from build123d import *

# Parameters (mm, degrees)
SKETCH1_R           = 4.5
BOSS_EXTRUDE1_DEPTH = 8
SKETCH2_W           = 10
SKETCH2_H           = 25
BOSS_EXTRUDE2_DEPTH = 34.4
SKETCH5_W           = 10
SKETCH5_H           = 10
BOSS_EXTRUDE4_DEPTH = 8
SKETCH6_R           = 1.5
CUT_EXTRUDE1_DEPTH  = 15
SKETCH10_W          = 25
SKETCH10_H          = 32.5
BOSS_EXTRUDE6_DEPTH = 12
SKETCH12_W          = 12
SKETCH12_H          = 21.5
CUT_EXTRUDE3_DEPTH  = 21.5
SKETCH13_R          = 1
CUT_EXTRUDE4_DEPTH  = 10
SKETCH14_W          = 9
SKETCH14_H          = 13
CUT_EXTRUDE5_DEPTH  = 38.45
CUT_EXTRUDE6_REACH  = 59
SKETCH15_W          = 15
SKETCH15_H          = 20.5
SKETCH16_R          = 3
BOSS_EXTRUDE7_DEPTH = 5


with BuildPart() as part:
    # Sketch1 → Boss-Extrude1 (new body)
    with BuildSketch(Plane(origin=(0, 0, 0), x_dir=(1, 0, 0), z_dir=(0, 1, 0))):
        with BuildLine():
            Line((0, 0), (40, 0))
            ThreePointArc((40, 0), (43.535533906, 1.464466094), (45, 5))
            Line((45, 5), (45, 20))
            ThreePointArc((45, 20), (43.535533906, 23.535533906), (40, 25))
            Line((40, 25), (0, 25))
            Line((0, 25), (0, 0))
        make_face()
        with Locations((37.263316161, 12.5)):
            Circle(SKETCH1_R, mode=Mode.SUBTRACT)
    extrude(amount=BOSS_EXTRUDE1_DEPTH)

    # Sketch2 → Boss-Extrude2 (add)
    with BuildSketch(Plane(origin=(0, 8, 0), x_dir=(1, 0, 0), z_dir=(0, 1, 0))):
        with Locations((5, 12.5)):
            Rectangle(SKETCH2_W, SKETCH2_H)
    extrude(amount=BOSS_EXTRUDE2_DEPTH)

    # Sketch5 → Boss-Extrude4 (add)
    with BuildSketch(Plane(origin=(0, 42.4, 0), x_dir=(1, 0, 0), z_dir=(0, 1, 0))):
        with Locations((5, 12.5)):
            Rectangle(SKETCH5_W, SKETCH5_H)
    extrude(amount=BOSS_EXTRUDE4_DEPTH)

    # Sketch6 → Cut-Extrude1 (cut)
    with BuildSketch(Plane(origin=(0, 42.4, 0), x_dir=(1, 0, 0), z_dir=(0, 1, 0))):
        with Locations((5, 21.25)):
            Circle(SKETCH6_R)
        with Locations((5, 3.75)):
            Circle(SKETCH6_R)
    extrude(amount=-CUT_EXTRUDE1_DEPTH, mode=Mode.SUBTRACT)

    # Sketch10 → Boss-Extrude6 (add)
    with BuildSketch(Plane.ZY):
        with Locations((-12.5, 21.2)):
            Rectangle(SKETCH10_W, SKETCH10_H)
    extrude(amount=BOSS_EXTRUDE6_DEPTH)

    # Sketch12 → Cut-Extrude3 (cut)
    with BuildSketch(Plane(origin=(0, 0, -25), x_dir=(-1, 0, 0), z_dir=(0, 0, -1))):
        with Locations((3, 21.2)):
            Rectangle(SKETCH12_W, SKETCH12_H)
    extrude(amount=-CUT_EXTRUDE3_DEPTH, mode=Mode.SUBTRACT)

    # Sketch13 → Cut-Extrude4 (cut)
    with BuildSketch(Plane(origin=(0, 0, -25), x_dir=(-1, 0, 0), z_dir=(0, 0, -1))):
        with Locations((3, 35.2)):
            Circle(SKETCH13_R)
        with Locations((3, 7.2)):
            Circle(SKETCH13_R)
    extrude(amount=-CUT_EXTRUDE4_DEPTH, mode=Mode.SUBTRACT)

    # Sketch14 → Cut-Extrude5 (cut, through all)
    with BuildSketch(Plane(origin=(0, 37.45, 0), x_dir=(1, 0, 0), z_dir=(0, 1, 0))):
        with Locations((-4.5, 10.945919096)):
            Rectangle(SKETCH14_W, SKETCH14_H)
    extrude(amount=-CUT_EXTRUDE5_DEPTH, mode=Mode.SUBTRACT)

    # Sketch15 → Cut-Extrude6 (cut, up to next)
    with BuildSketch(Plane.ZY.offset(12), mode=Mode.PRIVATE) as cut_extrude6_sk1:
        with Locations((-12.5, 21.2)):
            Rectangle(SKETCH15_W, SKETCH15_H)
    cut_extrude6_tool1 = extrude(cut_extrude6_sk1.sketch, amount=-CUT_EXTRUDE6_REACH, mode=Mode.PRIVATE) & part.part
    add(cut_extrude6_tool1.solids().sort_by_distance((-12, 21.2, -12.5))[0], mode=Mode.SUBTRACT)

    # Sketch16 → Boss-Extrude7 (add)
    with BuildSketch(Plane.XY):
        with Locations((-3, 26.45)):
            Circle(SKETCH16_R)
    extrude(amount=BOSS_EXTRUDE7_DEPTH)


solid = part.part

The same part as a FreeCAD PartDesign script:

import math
import FreeCAD as App
import Part
import Sketcher

V = App.Vector
Q = App.Units.Quantity


def add_polygon(sketch, points):
    """Adds a closed chain of lines whose ends are joined by coincident constraints."""
    first, n = sketch.GeometryCount, len(points)
    for a, b in zip(points, points[1:] + points[:1]):
        sketch.addGeometry(Part.LineSegment(App.Vector(*a, 0), App.Vector(*b, 0)), False)
    for i in range(n):
        sketch.addConstraint(Sketcher.Constraint("Coincident", first + i, 2, first + (i + 1) % n, 1))

doc = App.newDocument("Part")
params = doc.addObject("Spreadsheet::Sheet", "Params")
for row, (alias, value) in enumerate([
    ("sketch1_diameter", "9 mm"),
    ("sketch1_radius", "5 mm"),
    ("sketch1_width", "40 mm"),
    ("sketch1_height", "15 mm"),
    ("pad1_length", "8 mm"),
    ("sketch2_width", "10 mm"),
    ("sketch2_height", "25 mm"),
    ("pad2_length", "34.4 mm"),
    ("sketch3_width", "10 mm"),
    ("pad3_length", "8 mm"),
    ("sketch4_diameter", "3 mm"),
    ("pocket1_length", "15 mm"),
    ("sketch5_height", "25 mm"),
    ("sketch5_width", "32.5 mm"),
    ("pad4_length", "12 mm"),
    ("sketch6_width", "12 mm"),
    ("sketch6_height", "21.5 mm"),
    ("pocket2_length", "21.5 mm"),
    ("sketch7_diameter", "2 mm"),
    ("pocket3_length", "10 mm"),
    ("sketch8_width", "9 mm"),
    ("sketch8_height", "13 mm"),
    ("sketch9_height", "15 mm"),
    ("sketch9_width", "20.5 mm"),
    ("sketch10_diameter", "6 mm"),
    ("pad5_length", "5 mm"),
], start=1):
    params.set(f"A{row}", alias)
    params.set(f"B{row}", "=" + value)
    params.setAlias(f"B{row}", alias)

body = doc.addObject("PartDesign::Body", "Body")

# Sketch on XZ plane
sketch1 = body.newObject("Sketcher::SketchObject", "Sketch")
sketch1.AttachmentSupport = (doc.getObject("XZ_Plane"), [""])
sketch1.MapMode = "FlatFace"
sketch1.addGeometry([
    Part.LineSegment(V(0, 0, 0), V(40, 0, 0)),  # 0
    Part.ArcOfCircle(Part.Circle(V(40, -5, 0), V(0, 0, 1), 5), math.radians(0), math.radians(90)),  # 1
    Part.LineSegment(V(45, -5, 0), V(45, -20, 0)),  # 2
    Part.ArcOfCircle(Part.Circle(V(40, -20, 0), V(0, 0, 1), 5), math.radians(-90), math.radians(0)),  # 3
    Part.LineSegment(V(40, -25, 0), V(0, -25, 0)),  # 4
    Part.LineSegment(V(0, -25, 0), V(0, 0, 0)),  # 5
    Part.Circle(V(37.3, -12.5, 0), V(0, 0, 1), 4.5),  # 6
], False)
sketch1.addConstraint([
    Sketcher.Constraint("Tangent", 0, 2, 1, 2),
    Sketcher.Constraint("Tangent", 1, 1, 2, 1),
    Sketcher.Constraint("Tangent", 2, 2, 3, 2),
    Sketcher.Constraint("Tangent", 3, 1, 4, 1),
    Sketcher.Constraint("Coincident", 4, 2, 5, 1),
    Sketcher.Constraint("Coincident", 5, 2, 0, 1),
    Sketcher.Constraint("Horizontal", 0),
    Sketcher.Constraint("Vertical", 2),
    Sketcher.Constraint("Horizontal", 4),
    Sketcher.Constraint("Vertical", 5),
    Sketcher.Constraint("Coincident", 5, 2, -1, 1),
    Sketcher.Constraint("Equal", 1, 3),
    Sketcher.Constraint("Diameter", 6, Q("9 mm")),
    Sketcher.Constraint("Radius", 1, Q("5 mm")),
    Sketcher.Constraint("DistanceX", 0, 1, 0, 2, Q("40 mm")),
    Sketcher.Constraint("DistanceY", 2, 2, 2, 1, Q("15 mm")),
    Sketcher.Constraint("DistanceY", 6, 3, -1, 1, Q("12.5 mm")),
    Sketcher.Constraint("DistanceX", -1, 1, 6, 3, Q("37.263316 mm")),
])
sketch1.setExpression("Constraints[12]", "Params.sketch1_diameter")
sketch1.setExpression("Constraints[13]", "Params.sketch1_radius")
sketch1.setExpression("Constraints[14]", "Params.sketch1_width")
sketch1.setExpression("Constraints[15]", "Params.sketch1_height")
pad1 = body.newObject("PartDesign::Pad", "Pad")
pad1.Profile = sketch1
pad1.setExpression("Length", "Params.pad1_length")
pad1.Reversed = True

# Sketch on XZ plane
sketch2 = body.newObject("Sketcher::SketchObject", "Sketch001")
sketch2.AttachmentSupport = (doc.getObject("XZ_Plane"), [""])
sketch2.MapMode = "FlatFace"
sketch2.AttachmentOffset = App.Placement(V(0, 0, -8), App.Rotation())
add_polygon(sketch2, [(0, -25), (0, 0), (10, 0), (10, -25)])  # lines 0-3
sketch2.addConstraint([
    Sketcher.Constraint("Vertical", 0),
    Sketcher.Constraint("Horizontal", 1),
    Sketcher.Constraint("Vertical", 2),
    Sketcher.Constraint("Horizontal", 3),
    Sketcher.Constraint("Coincident", 0, 2, -1, 1),
    Sketcher.Constraint("DistanceX", 1, 1, 1, 2, Q("10 mm")),
    Sketcher.Constraint("DistanceY", 0, 1, 0, 2, Q("25 mm")),
])
sketch2.setExpression("Constraints[9]", "Params.sketch2_width")
sketch2.setExpression("Constraints[10]", "Params.sketch2_height")
pad2 = body.newObject("PartDesign::Pad", "Pad001")
pad2.Profile = sketch2
pad2.setExpression("Length", "Params.pad2_length")
pad2.Reversed = True

# Sketch on XZ plane
sketch3 = body.newObject("Sketcher::SketchObject", "Sketch002")
sketch3.AttachmentSupport = (doc.getObject("XZ_Plane"), [""])
sketch3.MapMode = "FlatFace"
sketch3.AttachmentOffset = App.Placement(V(0, 0, -42.4), App.Rotation())
add_polygon(sketch3, [(0, -18), (0, -8), (10, -8), (10, -18)])  # lines 0-3
sketch3.addConstraint([
    Sketcher.Constraint("Vertical", 0),
    Sketcher.Constraint("Horizontal", 1),
    Sketcher.Constraint("Vertical", 2),
    Sketcher.Constraint("Horizontal", 3),
    Sketcher.Constraint("PointOnObject", 0, 2, -2),
    Sketcher.Constraint("Equal", 3, 0),
    Sketcher.Constraint("DistanceX", 1, 1, 1, 2, Q("10 mm")),
    Sketcher.Constraint("DistanceY", 0, 2, -1, 1, Q("7.5 mm")),
])
sketch3.setExpression("Constraints[10]", "Params.sketch3_width")
pad3 = body.newObject("PartDesign::Pad", "Pad002")
pad3.Profile = sketch3
pad3.setExpression("Length", "Params.pad3_length")
pad3.Reversed = True

# Sketch on XZ plane
sketch4 = body.newObject("Sketcher::SketchObject", "Sketch003")
sketch4.AttachmentSupport = (doc.getObject("XZ_Plane"), [""])
sketch4.MapMode = "FlatFace"
sketch4.AttachmentOffset = App.Placement(V(0, 0, -42.4), App.Rotation())
sketch4.addGeometry([
    Part.Circle(V(5, -21.2, 0), V(0, 0, 1), 1.5),
    Part.Circle(V(5, -3.8, 0), V(0, 0, 1), 1.5),
], False)
sketch4.addConstraint([
    Sketcher.Constraint("Equal", 0, 1),
    Sketcher.Constraint("Vertical", 0, 3, 1, 3),
    Sketcher.Constraint("Diameter", 0, Q("3 mm")),
    Sketcher.Constraint("DistanceX", -1, 1, 0, 3, Q("5 mm")),
    Sketcher.Constraint("DistanceY", 0, 3, 1, 3, Q("17.5 mm")),
    Sketcher.Constraint("DistanceY", 0, 3, -1, 1, Q("21.25 mm")),
])
sketch4.setExpression("Constraints[2]", "Params.sketch4_diameter")
pocket1 = body.newObject("PartDesign::Pocket", "Pocket")
pocket1.Profile = sketch4
pocket1.setExpression("Length", "Params.pocket1_length")
pocket1.Reversed = True

# Sketch on YZ plane
sketch5 = body.newObject("Sketcher::SketchObject", "Sketch004")
sketch5.AttachmentSupport = (doc.getObject("YZ_Plane"), [""])
sketch5.MapMode = "FlatFace"
add_polygon(sketch5, [(37, -25), (5, -25), (5, 0), (37, 0)])  # lines 0-3
sketch5.addConstraint([
    Sketcher.Constraint("Horizontal", 0),
    Sketcher.Constraint("Vertical", 1),
    Sketcher.Constraint("Horizontal", 2),
    Sketcher.Constraint("Vertical", 3),
    Sketcher.Constraint("PointOnObject", 1, 2, -1),
    Sketcher.Constraint("DistanceY", 1, 1, 1, 2, Q("25 mm")),
    Sketcher.Constraint("DistanceX", 0, 2, 0, 1, Q("32.5 mm")),
    Sketcher.Constraint("DistanceX", -1, 1, 0, 2, Q("4.95 mm")),
])
sketch5.setExpression("Constraints[9]", "Params.sketch5_height")
sketch5.setExpression("Constraints[10]", "Params.sketch5_width")
pad4 = body.newObject("PartDesign::Pad", "Pad003")
pad4.Profile = sketch5
pad4.setExpression("Length", "Params.pad4_length")
pad4.Reversed = True

# Sketch on XY plane
sketch6 = body.newObject("Sketcher::SketchObject", "Sketch005")
sketch6.AttachmentSupport = (doc.getObject("XY_Plane"), [""])
sketch6.MapMode = "FlatFace"
sketch6.AttachmentOffset = App.Placement(V(0, 0, -25), App.Rotation())
add_polygon(sketch6, [(3, 32), (3, 10), (-9, 10), (-9, 32)])  # lines 0-3
sketch6.addConstraint([
    Sketcher.Constraint("Vertical", 0),
    Sketcher.Constraint("Horizontal", 1),
    Sketcher.Constraint("Vertical", 2),
    Sketcher.Constraint("Horizontal", 3),
    Sketcher.Constraint("DistanceX", 1, 2, 1, 1, Q("12 mm")),
    Sketcher.Constraint("DistanceY", 0, 2, 0, 1, Q("21.5 mm")),
    Sketcher.Constraint("DistanceX", -1, 1, 0, 2, Q("3 mm")),
    Sketcher.Constraint("DistanceY", -1, 1, 0, 2, Q("10.45 mm")),
])
sketch6.setExpression("Constraints[8]", "Params.sketch6_width")
sketch6.setExpression("Constraints[9]", "Params.sketch6_height")
pocket2 = body.newObject("PartDesign::Pocket", "Pocket001")
pocket2.Profile = sketch6
pocket2.setExpression("Length", "Params.pocket2_length")
pocket2.Reversed = True

# Sketch on XY plane
sketch7 = body.newObject("Sketcher::SketchObject", "Sketch006")
sketch7.AttachmentSupport = (doc.getObject("XY_Plane"), [""])
sketch7.MapMode = "FlatFace"
sketch7.AttachmentOffset = App.Placement(V(0, 0, -25), App.Rotation())
sketch7.addGeometry([
    Part.Circle(V(-3, 35.2, 0), V(0, 0, 1), 1),
    Part.Circle(V(-3, 7.2, 0), V(0, 0, 1), 1),
], False)
sketch7.addConstraint([
    Sketcher.Constraint("Equal", 0, 1),
    Sketcher.Constraint("Vertical", 0, 3, 1, 3),
    Sketcher.Constraint("Diameter", 0, Q("2 mm")),
    Sketcher.Constraint("DistanceX", 0, 3, -1, 1, Q("3 mm")),
    Sketcher.Constraint("DistanceY", 1, 3, 0, 3, Q("28 mm")),
    Sketcher.Constraint("DistanceY", -1, 1, 0, 3, Q("35.2 mm")),
])
sketch7.setExpression("Constraints[2]", "Params.sketch7_diameter")
pocket3 = body.newObject("PartDesign::Pocket", "Pocket002")
pocket3.Profile = sketch7
pocket3.setExpression("Length", "Params.pocket3_length")
pocket3.Reversed = True

# Sketch on XZ plane
sketch8 = body.newObject("Sketcher::SketchObject", "Sketch007")
sketch8.AttachmentSupport = (doc.getObject("XZ_Plane"), [""])
sketch8.MapMode = "FlatFace"
sketch8.AttachmentOffset = App.Placement(V(0, 0, -37.45), App.Rotation())
add_polygon(sketch8, [(-9, -17), (-9, -4), (0, -4), (0, -17)])  # lines 0-3
sketch8.addConstraint([
    Sketcher.Constraint("Vertical", 0),
    Sketcher.Constraint("Horizontal", 1),
    Sketcher.Constraint("Vertical", 2),
    Sketcher.Constraint("Horizontal", 3),
    Sketcher.Constraint("PointOnObject", 1, 2, -2),
    Sketcher.Constraint("DistanceX", 1, 1, 1, 2, Q("9 mm")),
    Sketcher.Constraint("DistanceY", 0, 1, 0, 2, Q("13 mm")),
    Sketcher.Constraint("DistanceY", 0, 2, -1, 1, Q("4.445919 mm")),
])
sketch8.setExpression("Constraints[9]", "Params.sketch8_width")
sketch8.setExpression("Constraints[10]", "Params.sketch8_height")
pocket4 = body.newObject("PartDesign::Pocket", "Pocket003")
pocket4.Profile = sketch8
pocket4.Type = "ThroughAll"
pocket4.Reversed = True

# Sketch on YZ plane
sketch9 = body.newObject("Sketcher::SketchObject", "Sketch008")
sketch9.AttachmentSupport = (doc.getObject("YZ_Plane"), [""])
sketch9.MapMode = "FlatFace"
sketch9.AttachmentOffset = App.Placement(V(0, 0, -12), App.Rotation())
add_polygon(sketch9, [(31, -20), (11, -20), (11, -5), (31, -5)])  # lines 0-3
sketch9.addConstraint([
    Sketcher.Constraint("Horizontal", 0),
    Sketcher.Constraint("Vertical", 1),
    Sketcher.Constraint("Horizontal", 2),
    Sketcher.Constraint("Vertical", 3),
    Sketcher.Constraint("DistanceY", 1, 1, 1, 2, Q("15 mm")),
    Sketcher.Constraint("DistanceX", 0, 2, 0, 1, Q("20.5 mm")),
    Sketcher.Constraint("DistanceY", 0, 2, -1, 1, Q("20 mm")),
    Sketcher.Constraint("DistanceX", -1, 1, 0, 2, Q("10.95 mm")),
])
sketch9.setExpression("Constraints[8]", "Params.sketch9_height")
sketch9.setExpression("Constraints[9]", "Params.sketch9_width")
pocket5 = body.newObject("PartDesign::Pocket", "Pocket004")
pocket5.Profile = sketch9
pocket5.Type = "UpToFirst"
pocket5.Reversed = True

# Sketch on XY plane
sketch10 = body.newObject("Sketcher::SketchObject", "Sketch009")
sketch10.AttachmentSupport = (doc.getObject("XY_Plane"), [""])
sketch10.MapMode = "FlatFace"
sketch10.addGeometry(Part.Circle(V(-3, 26.4, 0), V(0, 0, 1), 3), False)
sketch10.addConstraint([
    Sketcher.Constraint("Diameter", 0, Q("6 mm")),
    Sketcher.Constraint("DistanceX", 0, 3, -1, 1, Q("3 mm")),
    Sketcher.Constraint("DistanceY", -1, 1, 0, 3, Q("26.45 mm")),
])
sketch10.setExpression("Constraints[0]", "Params.sketch10_diameter")
pad5 = body.newObject("PartDesign::Pad", "Pad004")
pad5.Profile = sketch10
pad5.setExpression("Length", "Params.pad5_length")

doc.recompute()
